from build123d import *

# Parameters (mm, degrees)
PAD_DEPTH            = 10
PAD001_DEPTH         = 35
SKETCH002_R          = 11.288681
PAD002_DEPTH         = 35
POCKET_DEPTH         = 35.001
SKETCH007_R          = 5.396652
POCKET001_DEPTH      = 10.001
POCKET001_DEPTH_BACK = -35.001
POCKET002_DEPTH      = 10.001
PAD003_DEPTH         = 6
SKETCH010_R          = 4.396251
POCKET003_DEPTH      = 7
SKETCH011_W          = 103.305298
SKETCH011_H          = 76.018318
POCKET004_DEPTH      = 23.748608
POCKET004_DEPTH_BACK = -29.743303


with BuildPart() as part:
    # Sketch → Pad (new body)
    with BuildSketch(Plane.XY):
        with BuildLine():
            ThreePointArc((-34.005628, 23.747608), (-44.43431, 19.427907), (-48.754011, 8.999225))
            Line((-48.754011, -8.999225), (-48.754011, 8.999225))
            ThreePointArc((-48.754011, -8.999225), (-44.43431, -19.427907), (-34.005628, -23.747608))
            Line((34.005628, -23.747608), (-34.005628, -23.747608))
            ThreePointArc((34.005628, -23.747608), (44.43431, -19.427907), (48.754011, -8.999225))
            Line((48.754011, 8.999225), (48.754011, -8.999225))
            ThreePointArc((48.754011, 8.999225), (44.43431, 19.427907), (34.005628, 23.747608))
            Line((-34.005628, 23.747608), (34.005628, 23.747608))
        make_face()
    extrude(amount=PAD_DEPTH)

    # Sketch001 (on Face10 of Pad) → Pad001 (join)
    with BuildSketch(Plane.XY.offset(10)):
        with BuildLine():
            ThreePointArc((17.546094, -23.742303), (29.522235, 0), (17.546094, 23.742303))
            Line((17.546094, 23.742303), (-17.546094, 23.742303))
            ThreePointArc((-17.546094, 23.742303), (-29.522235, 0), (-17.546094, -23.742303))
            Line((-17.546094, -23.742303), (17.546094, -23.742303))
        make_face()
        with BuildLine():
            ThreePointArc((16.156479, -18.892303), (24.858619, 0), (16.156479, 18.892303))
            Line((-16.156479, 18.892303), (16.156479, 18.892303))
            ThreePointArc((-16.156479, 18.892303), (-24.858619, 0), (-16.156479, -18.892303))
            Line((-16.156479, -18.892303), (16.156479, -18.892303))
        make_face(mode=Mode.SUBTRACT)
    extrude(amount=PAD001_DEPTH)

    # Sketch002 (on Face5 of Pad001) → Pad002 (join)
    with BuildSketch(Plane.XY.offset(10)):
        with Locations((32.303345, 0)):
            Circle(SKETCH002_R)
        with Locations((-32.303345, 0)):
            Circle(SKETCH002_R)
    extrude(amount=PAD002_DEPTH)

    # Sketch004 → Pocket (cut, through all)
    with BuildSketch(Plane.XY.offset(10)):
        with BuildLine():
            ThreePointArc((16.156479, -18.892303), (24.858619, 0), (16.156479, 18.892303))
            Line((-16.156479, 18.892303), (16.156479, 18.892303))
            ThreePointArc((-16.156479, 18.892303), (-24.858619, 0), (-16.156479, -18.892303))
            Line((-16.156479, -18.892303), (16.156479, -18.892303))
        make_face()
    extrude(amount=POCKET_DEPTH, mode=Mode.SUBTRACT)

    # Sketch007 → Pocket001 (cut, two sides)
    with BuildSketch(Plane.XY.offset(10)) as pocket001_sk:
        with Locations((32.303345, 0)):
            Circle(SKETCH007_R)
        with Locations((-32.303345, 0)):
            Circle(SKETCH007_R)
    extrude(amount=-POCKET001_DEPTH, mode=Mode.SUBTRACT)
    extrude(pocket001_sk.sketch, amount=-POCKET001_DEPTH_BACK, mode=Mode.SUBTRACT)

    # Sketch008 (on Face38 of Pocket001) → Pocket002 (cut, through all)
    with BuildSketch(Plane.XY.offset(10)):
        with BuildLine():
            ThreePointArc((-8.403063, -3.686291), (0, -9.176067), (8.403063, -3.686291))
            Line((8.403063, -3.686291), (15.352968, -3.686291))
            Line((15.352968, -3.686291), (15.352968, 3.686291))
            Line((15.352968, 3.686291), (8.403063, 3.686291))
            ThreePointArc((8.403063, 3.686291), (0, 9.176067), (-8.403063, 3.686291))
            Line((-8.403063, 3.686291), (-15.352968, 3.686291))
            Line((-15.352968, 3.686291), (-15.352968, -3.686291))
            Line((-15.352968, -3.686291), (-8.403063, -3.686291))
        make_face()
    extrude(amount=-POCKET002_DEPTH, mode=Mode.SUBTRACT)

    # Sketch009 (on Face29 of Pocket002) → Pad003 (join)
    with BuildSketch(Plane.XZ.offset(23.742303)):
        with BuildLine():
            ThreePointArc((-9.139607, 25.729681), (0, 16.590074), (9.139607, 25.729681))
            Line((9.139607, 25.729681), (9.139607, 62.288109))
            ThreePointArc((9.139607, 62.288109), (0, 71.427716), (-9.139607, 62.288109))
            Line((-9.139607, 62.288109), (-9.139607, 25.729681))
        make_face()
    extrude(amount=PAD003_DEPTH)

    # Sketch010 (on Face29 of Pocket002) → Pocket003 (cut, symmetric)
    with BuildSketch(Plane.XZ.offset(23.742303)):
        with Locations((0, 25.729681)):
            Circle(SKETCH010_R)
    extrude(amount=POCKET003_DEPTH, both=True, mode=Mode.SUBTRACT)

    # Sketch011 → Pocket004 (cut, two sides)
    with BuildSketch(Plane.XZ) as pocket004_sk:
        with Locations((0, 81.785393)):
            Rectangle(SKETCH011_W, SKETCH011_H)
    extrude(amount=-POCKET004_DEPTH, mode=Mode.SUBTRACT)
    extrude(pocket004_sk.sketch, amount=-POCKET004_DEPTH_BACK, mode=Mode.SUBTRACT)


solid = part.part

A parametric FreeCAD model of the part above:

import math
import FreeCAD as App
import Part
import Sketcher

V = App.Vector
Q = App.Units.Quantity

doc = App.newDocument("Part")
params = doc.addObject("Spreadsheet::Sheet", "Params")
for row, (alias, value) in enumerate([
    ("pad1_length", "10 mm"),
    ("pad2_length", "35 mm"),
    ("pad3_length", "35 mm"),
    ("pad4_length", "6 mm"),
    ("pocket4_length", "14 mm"),
], start=1):
    params.set(f"A{row}", alias)
    params.set(f"B{row}", "=" + value)
    params.setAlias(f"B{row}", alias)

body = doc.addObject("PartDesign::Body", "Body")

# Sketch on XY plane
sketch1 = body.newObject("Sketcher::SketchObject", "Sketch")
sketch1.AttachmentSupport = (doc.getObject("XY_Plane"), [""])
sketch1.MapMode = "FlatFace"
sketch1.addGeometry(Part.ArcOfCircle(Part.Circle(V(-34, 9, 0), V(0, 0, 1), 15), math.radians(90), math.radians(180)), False)
sketch1.addGeometry(Part.LineSegment(V(-49, 9, 0), V(-49, -9, 0)), False)
sketch1.addGeometry(Part.ArcOfCircle(Part.Circle(V(-34, -9, 0), V(0, 0, 1), 15), math.radians(180), math.radians(270)), False)
sketch1.addGeometry(Part.LineSegment(V(-34, -24, 0), V(34, -24, 0)), False)
sketch1.addGeometry(Part.ArcOfCircle(Part.Circle(V(34, -9, 0), V(0, 0, 1), 15), math.radians(-90), math.radians(0)), False)
sketch1.addGeometry(Part.LineSegment(V(49, -9, 0), V(49, 9, 0)), False)
sketch1.addGeometry(Part.ArcOfCircle(Part.Circle(V(34, 9, 0), V(0, 0, 1), 15), math.radians(0), math.radians(90)), False)
sketch1.addGeometry(Part.LineSegment(V(34, 24, 0), V(-34, 24, 0)), False)
sketch1.addConstraint(Sketcher.Constraint("Tangent", 0, 2, 1, 1))
sketch1.addConstraint(Sketcher.Constraint("Tangent", 1, 2, 2, 1))
sketch1.addConstraint(Sketcher.Constraint("Tangent", 2, 2, 3, 1))
sketch1.addConstraint(Sketcher.Constraint("Tangent", 3, 2, 4, 1))
sketch1.addConstraint(Sketcher.Constraint("Tangent", 4, 2, 5, 1))
sketch1.addConstraint(Sketcher.Constraint("Tangent", 5, 2, 6, 1))
sketch1.addConstraint(Sketcher.Constraint("Tangent", 6, 2, 7, 1))
sketch1.addConstraint(Sketcher.Constraint("Tangent", 7, 2, 0, 1))
sketch1.addConstraint(Sketcher.Constraint("Vertical", 1))
sketch1.addConstraint(Sketcher.Constraint("Horizontal", 3))
sketch1.addConstraint(Sketcher.Constraint("Vertical", 5))
sketch1.addConstraint(Sketcher.Constraint("Horizontal", 7))
sketch1.addConstraint(Sketcher.Constraint("Equal", 0, 2))
sketch1.addConstraint(Sketcher.Constraint("Equal", 2, 4))
sketch1.addConstraint(Sketcher.Constraint("Equal", 4, 6))
sketch1.addConstraint(Sketcher.Constraint("Symmetric", 0, 3, 4, 3, -1, 1))
sketch1.addConstraint(Sketcher.Constraint("Radius", 0, Q("14.748382 mm")))
sketch1.addConstraint(Sketcher.Constraint("DistanceY", 1, 2, 1, 1, Q("17.99845 mm")))
sketch1.addConstraint(Sketcher.Constraint("DistanceX", 3, 1, 3, 2, Q("68.011256 mm")))
pad1 = body.newObject("PartDesign::Pad", "Pad")
pad1.Profile = sketch1
pad1.setExpression("Length", "Params.pad1_length")

# Sketch on XY plane
sketch2 = body.newObject("Sketcher::SketchObject", "Sketch001")
sketch2.AttachmentSupport = (doc.getObject("XY_Plane"), [""])
sketch2.MapMode = "FlatFace"
sketch2.AttachmentOffset = App.Placement(V(0, 0, 10), App.Rotation())
sketch2.addGeometry(Part.ArcOfCircle(Part.Circle(V(0, 0, 0), V(0, 0, 1), 30), math.radians(-54), math.radians(54)), False)
sketch2.addGeometry(Part.LineSegment(V(18, 24, 0), V(-18, 24, 0)), False)
sketch2.addGeometry(Part.ArcOfCircle(Part.Circle(V(0, 0, 0), V(0, 0, 1), 30), math.radians(126), math.radians(234)), False)
sketch2.addGeometry(Part.LineSegment(V(-18, -24, 0), V(18, -24, 0)), False)
sketch2.addGeometry(Part.ArcOfCircle(Part.Circle(V(0, 0, 0), V(0, 0, 1), 25), math.radians(-49), math.radians(49)), False)
sketch2.addGeometry(Part.LineSegment(V(16, -19, 0), V(-16, -19, 0)), False)
sketch2.addGeometry(Part.ArcOfCircle(Part.Circle(V(0, 0, 0), V(0, 0, 1), 25), math.radians(131), math.radians(229)), False)
sketch2.addGeometry(Part.LineSegment(V(-16, 19, 0), V(16, 19, 0)), False)
sketch2.addConstraint(Sketcher.Constraint("Coincident", 0, 2, 1, 1))
sketch2.addConstraint(Sketcher.Constraint("Coincident", 1, 2, 2, 1))
sketch2.addConstraint(Sketcher.Constraint("Coincident", 2, 2, 3, 1))
sketch2.addConstraint(Sketcher.Constraint("Coincident", 3, 2, 0, 1))
sketch2.addConstraint(Sketcher.Constraint("Coincident", 4, 1, 5, 1))
sketch2.addConstraint(Sketcher.Constraint("Coincident", 5, 2, 6, 2))
sketch2.addConstraint(Sketcher.Constraint("Coincident", 6, 1, 7, 1))
sketch2.addConstraint(Sketcher.Constraint("Coincident", 7, 2, 4, 2))
sketch2.addConstraint(Sketcher.Constraint("Horizontal", 1))
sketch2.addConstraint(Sketcher.Constraint("Horizontal", 3))
sketch2.addConstraint(Sketcher.Constraint("Horizontal", 5))
sketch2.addConstraint(Sketcher.Constraint("Horizontal", 7))
sketch2.addConstraint(Sketcher.Constraint("Coincident", 0, 3, -1, 1))
sketch2.addConstraint(Sketcher.Constraint("Coincident", 2, 3, -1, 1))
sketch2.addConstraint(Sketcher.Constraint("Coincident", 4, 3, -1, 1))
sketch2.addConstraint(Sketcher.Constraint("Coincident", 6, 3, -1, 1))
sketch2.addConstraint(Sketcher.Constraint("Equal", 0, 2))
sketch2.addConstraint(Sketcher.Constraint("Equal", 4, 6))
sketch2.addConstraint(Sketcher.Constraint("Vertical", 1, 2, 2, 2))
sketch2.addConstraint(Sketcher.Constraint("Vertical", 5, 2, 6, 1))
sketch2.addConstraint(Sketcher.Constraint("Radius", 4, Q("24.858618 mm")))
sketch2.addConstraint(Sketcher.Constraint("DistanceY", 3, 2, 4, 1, Q("4.85 mm")))
sketch2.addConstraint(Sketcher.Constraint("Radius", 0, Q("29.522235 mm")))
sketch2.addConstraint(Sketcher.Constraint("DistanceX", 5, 2, 5, 1, Q("32.312958 mm")))
pad2 = body.newObject("PartDesign::Pad", "Pad001")
pad2.Profile = sketch2
pad2.setExpression("Length", "Params.pad2_length")

# Sketch on XY plane
sketch3 = body.newObject("Sketcher::SketchObject", "Sketch002")
sketch3.AttachmentSupport = (doc.getObject("XY_Plane"), [""])
sketch3.MapMode = "FlatFace"
sketch3.AttachmentOffset = App.Placement(V(0, 0, 10), App.Rotation())
sketch3.addGeometry(Part.Circle(V(32, 0, 0), V(0, 0, 1), 11), False)
sketch3.addGeometry(Part.Circle(V(-32, 0, 0), V(0, 0, 1), 11), False)
sketch3.addConstraint(Sketcher.Constraint("Equal", 0, 1))
sketch3.addConstraint(Sketcher.Constraint("Symmetric", 0, 3, 1, 3, -1, 1))
sketch3.addConstraint(Sketcher.Constraint("PointOnObject", 0, 3, -1))
sketch3.addConstraint(Sketcher.Constraint("Diameter", 0, Q("22.577362 mm")))
sketch3.addConstraint(Sketcher.Constraint("DistanceX", 1, 3, 0, 3, Q("64.60669 mm")))
pad3 = body.newObject("PartDesign::Pad", "Pad002")
pad3.Profile = sketch3
pad3.setExpression("Length", "Params.pad3_length")

# Sketch on XY plane
sketch4 = body.newObject("Sketcher::SketchObject", "Sketch003")
sketch4.AttachmentSupport = (doc.getObject("XY_Plane"), [""])
sketch4.MapMode = "FlatFace"
sketch4.AttachmentOffset = App.Placement(V(0, 0, 10), App.Rotation())
sketch4.addGeometry(Part.ArcOfCircle(Part.Circle(V(0, 0, 0), V(0, 0, 1), 25), math.radians(-49), math.radians(49)), False)
sketch4.addGeometry(Part.LineSegment(V(16, 19, 0), V(-16, 19, 0)), False)
sketch4.addGeometry(Part.ArcOfCircle(Part.Circle(V(0, 0, 0), V(0, 0, 1), 25), math.radians(131), math.radians(229)), False)
sketch4.addGeometry(Part.LineSegment(V(-16, -19, 0), V(16, -19, 0)), False)
sketch4.addConstraint(Sketcher.Constraint("Coincident", 0, 2, 1, 1))
sketch4.addConstraint(Sketcher.Constraint("Coincident", 1, 2, 2, 1))
sketch4.addConstraint(Sketcher.Constraint("Coincident", 2, 2, 3, 1))
sketch4.addConstraint(Sketcher.Constraint("Coincident", 3, 2, 0, 1))
sketch4.addConstraint(Sketcher.Constraint("Horizontal", 1))
sketch4.addConstraint(Sketcher.Constraint("Horizontal", 3))
sketch4.addConstraint(Sketcher.Constraint("Coincident", 0, 3, -1, 1))
sketch4.addConstraint(Sketcher.Constraint("Coincident", 2, 3, -1, 1))
sketch4.addConstraint(Sketcher.Constraint("Equal", 0, 2))
sketch4.addConstraint(Sketcher.Constraint("Vertical", 1, 2, 2, 2))
sketch4.addConstraint(Sketcher.Constraint("Radius", 0, Q("24.858618 mm")))
sketch4.addConstraint(Sketcher.Constraint("DistanceX", 1, 2, 1, 1, Q("32.312958 mm")))
pocket1 = body.newObject("PartDesign::Pocket", "Pocket")
pocket1.Profile = sketch4
pocket1.Type = "ThroughAll"
pocket1.Reversed = True

# Sketch on XY plane
sketch5 = body.newObject("Sketcher::SketchObject", "Sketch004")
sketch5.AttachmentSupport = (doc.getObject("XY_Plane"), [""])
sketch5.MapMode = "FlatFace"
sketch5.AttachmentOffset = App.Placement(V(0, 0, 10), App.Rotation())
sketch5.addGeometry(Part.Circle(V(32, 0, 0), V(0, 0, 1), 5), False)
sketch5.addGeometry(Part.Circle(V(-32, 0, 0), V(0, 0, 1), 5), False)
sketch5.addConstraint(Sketcher.Constraint("Equal", 0, 1))
sketch5.addConstraint(Sketcher.Constraint("Symmetric", 0, 3, 1, 3, -1, 1))
sketch5.addConstraint(Sketcher.Constraint("PointOnObject", 0, 3, -1))
sketch5.addConstraint(Sketcher.Constraint("Diameter", 0, Q("10.793304 mm")))
sketch5.addConstraint(Sketcher.Constraint("DistanceX", 1, 3, 0, 3, Q("64.60669 mm")))
pocket2 = body.newObject("PartDesign::Pocket", "Pocket001")
pocket2.Profile = sketch5
pocket2.Type = "ThroughAll"
pocket2.Midplane = True

# Sketch on XY plane
sketch6 = body.newObject("Sketcher::SketchObject", "Sketch005")
sketch6.AttachmentSupport = (doc.getObject("XY_Plane"), [""])
sketch6.MapMode = "FlatFace"
sketch6.AttachmentOffset = App.Placement(V(0, 0, 10), App.Rotation())
sketch6.addGeometry(Part.ArcOfCircle(Part.Circle(V(0, 0, 0), V(0, 0, 1), 9), math.radians(-156), math.radians(-24)), False)
sketch6.addGeometry(Part.LineSegment(V(8, -4, 0), V(15, -4, 0)), False)
sketch6.addGeometry(Part.LineSegment(V(15, -4, 0), V(15, 4, 0)), False)
sketch6.addGeometry(Part.LineSegment(V(15, 4, 0), V(8, 4, 0)), False)
sketch6.addGeometry(Part.ArcOfCircle(Part.Circle(V(0, 0, 0), V(0, 0, 1), 9), math.radians(24), math.radians(156)), False)
sketch6.addGeometry(Part.LineSegment(V(-8, 4, 0), V(-15, 4, 0)), False)
sketch6.addGeometry(Part.LineSegment(V(-15, 4, 0), V(-15, -4, 0)), False)
sketch6.addGeometry(Part.LineSegment(V(-15, -4, 0), V(-8, -4, 0)), False)
sketch6.addConstraint(Sketcher.Constraint("Coincident", 0, 2, 1, 1))
sketch6.addConstraint(Sketcher.Constraint("Coincident", 1, 2, 2, 1))
sketch6.addConstraint(Sketcher.Constraint("Coincident", 2, 2, 3, 1))
sketch6.addConstraint(Sketcher.Constraint("Coincident", 3, 2, 4, 1))
sketch6.addConstraint(Sketcher.Constraint("Coincident", 4, 2, 5, 1))
sketch6.addConstraint(Sketcher.Constraint("Coincident", 5, 2, 6, 1))
sketch6.addConstraint(Sketcher.Constraint("Coincident", 6, 2, 7, 1))
sketch6.addConstraint(Sketcher.Constraint("Coincident", 7, 2, 0, 1))
sketch6.addConstraint(Sketcher.Constraint("Horizontal", 1))
sketch6.addConstraint(Sketcher.Constraint("Vertical", 2))
sketch6.addConstraint(Sketcher.Constraint("Horizontal", 3))
sketch6.addConstraint(Sketcher.Constraint("Horizontal", 5))
sketch6.addConstraint(Sketcher.Constraint("Vertical", 6))
sketch6.addConstraint(Sketcher.Constraint("Horizontal", 7))
sketch6.addConstraint(Sketcher.Constraint("Coincident", 0, 3, -1, 1))
sketch6.addConstraint(Sketcher.Constraint("Coincident", 4, 3, -1, 1))
sketch6.addConstraint(Sketcher.Constraint("Equal", 0, 4))
sketch6.addConstraint(Sketcher.Constraint("Symmetric", 1, 2, 5, 2, -1, 1))
sketch6.addConstraint(Sketcher.Constraint("Horizontal", 3, 2, 4, 2))
sketch6.addConstraint(Sketcher.Constraint("Horizontal", 1, 2, 6, 2))
sketch6.addConstraint(Sketcher.Constraint("Radius", 0, Q("9.176067 mm")))
sketch6.addConstraint(Sketcher.Constraint("DistanceX", 1, 1, 1, 2, Q("6.949905 mm")))
sketch6.addConstraint(Sketcher.Constraint("DistanceY", 2, 1, 2, 2, Q("7.372582 mm")))
pocket3 = body.newObject("PartDesign::Pocket", "Pocket002")
pocket3.Profile = sketch6
pocket3.Type = "ThroughAll"

# Sketch on XZ plane
sketch7 = body.newObject("Sketcher::SketchObject", "Sketch006")
sketch7.AttachmentSupport = (doc.getObject("XZ_Plane"), [""])
sketch7.MapMode = "FlatFace"
sketch7.AttachmentOffset = App.Placement(V(0, 0, 23.742303), App.Rotation())
sketch7.addGeometry(Part.ArcOfCircle(Part.Circle(V(0, 26, 0), V(0, 0, 1), 9), math.radians(180), math.radians(360)), False)
sketch7.addGeometry(Part.LineSegment(V(9, 26, 0), V(9, 62, 0)), False)
sketch7.addGeometry(Part.ArcOfCircle(Part.Circle(V(0, 62, 0), V(0, 0, 1), 9), math.radians(0), math.radians(180)), False)
sketch7.addGeometry(Part.LineSegment(V(-9, 62, 0), V(-9, 26, 0)), False)
sketch7.addConstraint(Sketcher.Constraint("Tangent", 0, 2, 1, 1))
sketch7.addConstraint(Sketcher.Constraint("Tangent", 1, 2, 2, 1))
sketch7.addConstraint(Sketcher.Constraint("Tangent", 2, 2, 3, 1))
sketch7.addConstraint(Sketcher.Constraint("Tangent", 3, 2, 0, 1))
sketch7.addConstraint(Sketcher.Constraint("Vertical", 1))
sketch7.addConstraint(Sketcher.Constraint("Vertical", 3))
sketch7.addConstraint(Sketcher.Constraint("PointOnObject", 0, 3, -2))
sketch7.addConstraint(Sketcher.Constraint("Radius", 0, Q("9.139607 mm")))
sketch7.addConstraint(Sketcher.Constraint("DistanceY", 1, 1, 1, 2, Q("36.558428 mm")))
sketch7.addConstraint(Sketcher.Constraint("DistanceY", -1, 1, 0, 3, Q("25.729681 mm")))
pad4 = body.newObject("PartDesign::Pad", "Pad003")
pad4.Profile = sketch7
pad4.setExpression("Length", "Params.pad4_length")

# Sketch on XZ plane
sketch8 = body.newObject("Sketcher::SketchObject", "Sketch007")
sketch8.AttachmentSupport = (doc.getObject("XZ_Plane"), [""])
sketch8.MapMode = "FlatFace"
sketch8.AttachmentOffset = App.Placement(V(0, 0, 23.742303), App.Rotation())
sketch8.addGeometry(Part.Circle(V(0, 25.7, 0), V(0, 0, 1), 4.4), False)
sketch8.addConstraint(Sketcher.Constraint("PointOnObject", 0, 3, -2))
sketch8.addConstraint(Sketcher.Constraint("Diameter", 0, Q("8.792502 mm")))
sketch8.addConstraint(Sketcher.Constraint("DistanceY", -1, 1, 0, 3, Q("25.729681 mm")))
pocket4 = body.newObject("PartDesign::Pocket", "Pocket003")
pocket4.Profile = sketch8
pocket4.setExpression("Length", "Params.pocket4_length")
pocket4.Midplane = True

# Sketch on XZ plane
sketch9 = body.newObject("Sketcher::SketchObject", "Sketch008")
sketch9.AttachmentSupport = (doc.getObject("XZ_Plane"), [""])
sketch9.MapMode = "FlatFace"
sketch9.addGeometry(Part.LineSegment(V(-52, 120, 0), V(-52, 44, 0)), False)
sketch9.addGeometry(Part.LineSegment(V(-52, 44, 0), V(52, 44, 0)), False)
sketch9.addGeometry(Part.LineSegment(V(52, 44, 0), V(52, 120, 0)), False)
sketch9.addGeometry(Part.LineSegment(V(52, 120, 0), V(-52, 120, 0)), False)
sketch9.addConstraint(Sketcher.Constraint("Coincident", 0, 2, 1, 1))
sketch9.addConstraint(Sketcher.Constraint("Coincident", 1, 2, 2, 1))
sketch9.addConstraint(Sketcher.Constraint("Coincident", 2, 2, 3, 1))
sketch9.addConstraint(Sketcher.Constraint("Coincident", 3, 2, 0, 1))
sketch9.addConstraint(Sketcher.Constraint("Vertical", 0))
sketch9.addConstraint(Sketcher.Constraint("Horizontal", 1))
sketch9.addConstraint(Sketcher.Constraint("Vertical", 2))
sketch9.addConstraint(Sketcher.Constraint("Horizontal", 3))
sketch9.addConstraint(Sketcher.Constraint("DistanceX", 1, 1, 1, 2, Q("103.305298 mm")))
sketch9.addConstraint(Sketcher.Constraint("DistanceY", 0, 2, 0, 1, Q("76.018318 mm")))
sketch9.addConstraint(Sketcher.Constraint("DistanceX", 0, 2, -1, 1, Q("51.652649 mm")))
sketch9.addConstraint(Sketcher.Constraint("DistanceY", -1, 1, 2, 2, Q("119.794552 mm")))
pocket5 = body.newObject("PartDesign::Pocket", "Pocket004")
pocket5.Profile = sketch9
pocket5.Type = "ThroughAll"
pocket5.Midplane = True

doc.recompute()
